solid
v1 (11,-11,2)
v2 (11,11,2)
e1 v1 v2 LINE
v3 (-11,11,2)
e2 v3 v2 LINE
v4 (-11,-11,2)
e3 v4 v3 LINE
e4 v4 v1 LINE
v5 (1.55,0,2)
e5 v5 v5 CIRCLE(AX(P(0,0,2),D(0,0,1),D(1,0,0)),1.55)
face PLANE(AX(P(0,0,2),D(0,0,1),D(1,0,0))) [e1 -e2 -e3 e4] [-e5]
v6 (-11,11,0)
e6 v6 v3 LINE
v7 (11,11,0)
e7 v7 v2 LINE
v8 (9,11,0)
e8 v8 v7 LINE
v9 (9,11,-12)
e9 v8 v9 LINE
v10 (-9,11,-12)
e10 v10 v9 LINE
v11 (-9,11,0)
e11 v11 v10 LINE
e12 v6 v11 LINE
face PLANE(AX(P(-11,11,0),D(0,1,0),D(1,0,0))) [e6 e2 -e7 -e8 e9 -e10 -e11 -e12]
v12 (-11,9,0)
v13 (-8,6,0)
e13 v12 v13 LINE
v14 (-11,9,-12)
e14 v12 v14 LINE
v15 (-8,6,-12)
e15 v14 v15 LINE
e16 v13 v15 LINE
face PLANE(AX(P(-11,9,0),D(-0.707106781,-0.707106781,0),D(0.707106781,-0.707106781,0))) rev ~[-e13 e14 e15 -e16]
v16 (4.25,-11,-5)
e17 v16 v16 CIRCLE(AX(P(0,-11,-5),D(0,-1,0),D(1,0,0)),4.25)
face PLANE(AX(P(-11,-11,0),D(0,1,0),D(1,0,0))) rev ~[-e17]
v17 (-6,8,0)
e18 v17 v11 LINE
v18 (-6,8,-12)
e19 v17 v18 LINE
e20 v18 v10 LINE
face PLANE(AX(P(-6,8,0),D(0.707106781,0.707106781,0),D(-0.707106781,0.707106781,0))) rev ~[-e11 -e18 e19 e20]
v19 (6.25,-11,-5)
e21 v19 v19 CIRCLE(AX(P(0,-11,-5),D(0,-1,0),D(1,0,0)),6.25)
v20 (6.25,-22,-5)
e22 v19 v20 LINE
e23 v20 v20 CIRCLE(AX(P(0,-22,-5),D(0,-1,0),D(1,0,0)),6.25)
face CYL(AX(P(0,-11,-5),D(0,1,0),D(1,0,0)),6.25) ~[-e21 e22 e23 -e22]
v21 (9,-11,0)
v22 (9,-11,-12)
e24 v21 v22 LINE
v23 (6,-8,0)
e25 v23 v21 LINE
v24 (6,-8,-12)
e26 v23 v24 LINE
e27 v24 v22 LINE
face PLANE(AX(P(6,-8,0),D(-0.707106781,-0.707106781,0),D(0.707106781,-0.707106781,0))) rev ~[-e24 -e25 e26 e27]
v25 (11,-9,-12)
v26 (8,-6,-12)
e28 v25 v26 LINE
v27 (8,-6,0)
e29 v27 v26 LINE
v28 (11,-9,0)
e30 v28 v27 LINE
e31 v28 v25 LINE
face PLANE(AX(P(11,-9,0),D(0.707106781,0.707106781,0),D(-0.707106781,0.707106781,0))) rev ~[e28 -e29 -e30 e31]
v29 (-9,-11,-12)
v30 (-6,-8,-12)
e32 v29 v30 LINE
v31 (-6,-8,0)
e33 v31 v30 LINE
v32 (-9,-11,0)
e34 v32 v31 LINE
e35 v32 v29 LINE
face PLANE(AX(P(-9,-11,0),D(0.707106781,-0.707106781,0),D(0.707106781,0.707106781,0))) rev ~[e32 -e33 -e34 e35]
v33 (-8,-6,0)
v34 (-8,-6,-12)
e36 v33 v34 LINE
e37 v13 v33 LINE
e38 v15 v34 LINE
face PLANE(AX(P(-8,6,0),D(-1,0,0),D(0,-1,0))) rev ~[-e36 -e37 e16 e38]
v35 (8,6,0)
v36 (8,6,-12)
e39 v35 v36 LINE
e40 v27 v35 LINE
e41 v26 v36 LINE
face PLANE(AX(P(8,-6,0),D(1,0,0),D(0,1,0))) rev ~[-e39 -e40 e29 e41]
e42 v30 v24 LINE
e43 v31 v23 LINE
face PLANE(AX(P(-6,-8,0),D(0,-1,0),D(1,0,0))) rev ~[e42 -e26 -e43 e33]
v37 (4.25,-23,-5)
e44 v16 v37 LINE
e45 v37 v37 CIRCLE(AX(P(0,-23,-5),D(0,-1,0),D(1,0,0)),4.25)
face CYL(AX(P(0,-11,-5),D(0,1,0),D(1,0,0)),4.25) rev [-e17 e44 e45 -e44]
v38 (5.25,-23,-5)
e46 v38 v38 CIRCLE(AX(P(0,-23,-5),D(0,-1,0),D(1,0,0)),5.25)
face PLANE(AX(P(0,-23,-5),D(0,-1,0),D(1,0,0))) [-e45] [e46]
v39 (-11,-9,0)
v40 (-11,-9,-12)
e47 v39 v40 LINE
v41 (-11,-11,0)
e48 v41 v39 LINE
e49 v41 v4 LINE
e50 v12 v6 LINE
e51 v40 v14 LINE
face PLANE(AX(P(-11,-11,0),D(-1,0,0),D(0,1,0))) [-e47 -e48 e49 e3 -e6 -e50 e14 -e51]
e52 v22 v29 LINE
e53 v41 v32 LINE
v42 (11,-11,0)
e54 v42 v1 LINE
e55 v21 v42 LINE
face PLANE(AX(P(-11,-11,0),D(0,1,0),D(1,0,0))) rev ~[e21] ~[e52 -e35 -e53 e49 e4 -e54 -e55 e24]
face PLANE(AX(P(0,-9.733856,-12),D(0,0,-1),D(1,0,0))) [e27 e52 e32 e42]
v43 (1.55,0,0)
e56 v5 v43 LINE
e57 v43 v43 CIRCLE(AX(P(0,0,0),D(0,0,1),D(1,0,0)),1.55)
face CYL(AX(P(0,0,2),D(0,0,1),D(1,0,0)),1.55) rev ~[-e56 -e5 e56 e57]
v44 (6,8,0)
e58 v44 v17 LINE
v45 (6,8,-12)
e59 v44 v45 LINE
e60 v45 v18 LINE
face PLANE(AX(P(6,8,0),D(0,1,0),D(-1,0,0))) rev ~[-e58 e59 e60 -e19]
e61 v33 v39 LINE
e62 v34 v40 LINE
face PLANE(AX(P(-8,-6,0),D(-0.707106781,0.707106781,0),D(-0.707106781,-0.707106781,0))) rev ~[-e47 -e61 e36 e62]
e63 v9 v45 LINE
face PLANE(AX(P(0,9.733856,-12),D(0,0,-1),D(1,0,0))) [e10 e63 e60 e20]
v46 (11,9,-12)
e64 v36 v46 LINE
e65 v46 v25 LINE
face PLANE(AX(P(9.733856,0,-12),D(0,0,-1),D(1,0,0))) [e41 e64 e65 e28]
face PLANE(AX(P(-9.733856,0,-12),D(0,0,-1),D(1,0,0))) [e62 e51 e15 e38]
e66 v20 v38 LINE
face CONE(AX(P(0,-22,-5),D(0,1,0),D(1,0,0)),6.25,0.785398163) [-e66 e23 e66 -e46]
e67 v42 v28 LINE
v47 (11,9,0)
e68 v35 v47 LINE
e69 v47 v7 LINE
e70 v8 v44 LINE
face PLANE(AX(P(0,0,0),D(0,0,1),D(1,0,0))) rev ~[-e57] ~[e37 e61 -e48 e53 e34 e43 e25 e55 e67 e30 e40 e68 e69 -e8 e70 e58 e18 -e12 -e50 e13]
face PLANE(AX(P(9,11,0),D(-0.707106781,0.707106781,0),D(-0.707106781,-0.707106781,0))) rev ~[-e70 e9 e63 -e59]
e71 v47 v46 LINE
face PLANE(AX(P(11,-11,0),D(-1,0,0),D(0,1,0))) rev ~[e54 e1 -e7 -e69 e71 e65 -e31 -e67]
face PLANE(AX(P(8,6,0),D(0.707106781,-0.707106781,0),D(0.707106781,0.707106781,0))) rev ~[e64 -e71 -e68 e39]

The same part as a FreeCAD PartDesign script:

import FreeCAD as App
import Part
import Sketcher

V = App.Vector


def edges_at(feature, points):
    """Names of the edges that pass closest to the given points."""
    edges = feature.Shape.Edges
    near = lambda p: min(range(len(edges)), key=lambda i: edges[i].distToShape(Part.Vertex(*p))[0])
    return sorted({f"Edge{near(p) + 1}" for p in points})


def add_polygon(sketch, points):
    """Adds a closed chain of lines whose ends are joined by coincident constraints."""
    first, n = sketch.GeometryCount, len(points)
    for a, b in zip(points, points[1:] + points[:1]):
        sketch.addGeometry(Part.LineSegment(App.Vector(*a, 0), App.Vector(*b, 0)), False)
    for i in range(n):
        sketch.addConstraint(Sketcher.Constraint("Coincident", first + i, 2, first + (i + 1) % n, 1))

doc = App.newDocument("Part")
body = doc.addObject("PartDesign::Body", "Body")

sketch1 = doc.addObject("Sketcher::SketchObject", "Sketch")
body.addObject(sketch1)
sketch1.AttachmentSupport = (doc.XY_Plane, [""])
sketch1.MapMode = "FlatFace"
add_polygon(sketch1, [(-11, 11), (-11, -11), (11, -11), (11, 11)])
sketch1.addConstraint(Sketcher.Constraint("Vertical", 0))
sketch1.addConstraint(Sketcher.Constraint("Horizontal", 1))
sketch1.addConstraint(Sketcher.Constraint("Vertical", 2))
sketch1.addConstraint(Sketcher.Constraint("Horizontal", 3))
sketch1.addConstraint(Sketcher.Constraint("Symmetric", 0, 2, 2, 2, -1, 1))
sketch1.addConstraint(Sketcher.Constraint("Equal", 3, 0))
sketch1.addConstraint(Sketcher.Constraint("DistanceX", 1, 1, 1, 2, 22.0))
pad1 = doc.addObject("PartDesign::Pad", "Pad")
body.addObject(pad1)
pad1.Profile = sketch1
pad1.Length = 2

sketch2 = doc.addObject("Sketcher::SketchObject", "Sketch001")
body.addObject(sketch2)
sketch2.AttachmentSupport = (doc.XY_Plane, [""])
sketch2.MapMode = "FlatFace"
sketch2.AttachmentOffset = App.Placement(V(0, 0, 2), App.Rotation())
sketch2.addGeometry(Part.Circle(V(0, 0, 0), V(0, 0, 1), 1.55), False)
sketch2.addConstraint(Sketcher.Constraint("Coincident", 0, 3, -1, 1))
sketch2.addConstraint(Sketcher.Constraint("Diameter", 0, 3.1))
pocket1 = doc.addObject("PartDesign::Pocket", "Pocket")
body.addObject(pocket1)
pocket1.Profile = sketch2
pocket1.Type = "ThroughAll"

sketch3 = doc.addObject("Sketcher::SketchObject", "Sketch002")
body.addObject(sketch3)
sketch3.AttachmentSupport = (doc.XY_Plane, [""])
sketch3.MapMode = "FlatFace"
add_polygon(sketch3, [(9, -11), (-9, -11), (-6, -8), (6, -8)])
add_polygon(sketch3, [(-8, -6), (-11, -9), (-11, 9), (-8, 6)])
add_polygon(sketch3, [(-6, 8), (-9, 11), (9, 11), (6, 8)])
add_polygon(sketch3, [(8, 6), (11, 9), (11, -9), (8, -6)])
sketch3.addConstraint(Sketcher.Constraint("Horizontal", 0))
sketch3.addConstraint(Sketcher.Constraint("Horizontal", 2))
sketch3.addConstraint(Sketcher.Constraint("Vertical", 5))
sketch3.addConstraint(Sketcher.Constraint("Vertical", 7))
sketch3.addConstraint(Sketcher.Constraint("Horizontal", 9))
sketch3.addConstraint(Sketcher.Constraint("Horizontal", 11))
sketch3.addConstraint(Sketcher.Constraint("Vertical", 13))
sketch3.addConstraint(Sketcher.Constraint("Vertical", 15))
sketch3.addConstraint(Sketcher.Constraint("Symmetric", 3, 2, 8, 2, -1, 1))
sketch3.addConstraint(Sketcher.Constraint("Symmetric", 1, 2, 10, 2, -1, 1))
sketch3.addConstraint(Sketcher.Constraint("Symmetric", 4, 2, 12, 2, -1, 1))
sketch3.addConstraint(Sketcher.Constraint("Symmetric", 6, 2, 14, 2, -1, 1))
sketch3.addConstraint(Sketcher.Constraint("Perpendicular", 1, 3))
sketch3.addConstraint(Sketcher.Constraint("Perpendicular", 3, 4))
sketch3.addConstraint(Sketcher.Constraint("Perpendicular", 4, 6))
sketch3.addConstraint(Sketcher.Constraint("Parallel", 6, 8))
sketch3.addConstraint(Sketcher.Constraint("Perpendicular", 8, 10))
sketch3.addConstraint(Sketcher.Constraint("Parallel", 10, 12))
sketch3.addConstraint(Sketcher.Constraint("Perpendicular", 12, 14))
sketch3.addConstraint(Sketcher.Constraint("Horizontal", 5, 2, 12, 2))
sketch3.addConstraint(Sketcher.Constraint("Horizontal", 7, 2, 14, 2))
sketch3.addConstraint(Sketcher.Constraint("Vertical", 0, 2, 8, 2))
sketch3.addConstraint(Sketcher.Constraint("Equal", 9, 5))
sketch3.addConstraint(Sketcher.Constraint("Equal", 11, 7))
sketch3.addConstraint(Sketcher.Constraint("DistanceX", 0, 2, 0, 1, 18.0))
sketch3.addConstraint(Sketcher.Constraint("DistanceX", 2, 1, 2, 2, 12.0))
sketch3.addConstraint(Sketcher.Constraint("DistanceY", 0, 2, -1, 1, 11.0))
sketch3.addConstraint(Sketcher.Constraint("DistanceX", 4, 2, -1, 1, 11.0))
pad2 = doc.addObject("PartDesign::Pad", "Pad001")
body.addObject(pad2)
pad2.Profile = sketch3
pad2.Length = 12
pad2.Reversed = True

sketch4 = doc.addObject("Sketcher::SketchObject", "Sketch003")
body.addObject(sketch4)
sketch4.AttachmentSupport = (doc.XZ_Plane, [""])
sketch4.MapMode = "FlatFace"
sketch4.AttachmentOffset = App.Placement(V(0, 0, 11), App.Rotation())
sketch4.addGeometry(Part.Circle(V(0, -5, 0), V(0, 0, 1), 6.25), False)
sketch4.addGeometry(Part.Circle(V(0, -5, 0), V(0, 0, 1), 4.25), False)
sketch4.addConstraint(Sketcher.Constraint("Coincident", 1, 3, 0, 3))
sketch4.addConstraint(Sketcher.Constraint("PointOnObject", 0, 3, -2))
sketch4.addConstraint(Sketcher.Constraint("Diameter", 0, 12.5))
sketch4.addConstraint(Sketcher.Constraint("Diameter", 1, 8.5))
sketch4.addConstraint(Sketcher.Constraint("DistanceY", 0, 3, -1, 1, 5.0))
pad3 = doc.addObject("PartDesign::Pad", "Pad002")
body.addObject(pad3)
pad3.Profile = sketch4
pad3.Length = 12
doc.recompute()

chamfer = doc.addObject("PartDesign::Chamfer", "Chamfer")
body.addObject(chamfer)
chamfer.Base = (pad3, edges_at(pad3, [(-6.25, -23, -5)]))
chamfer.Size = 1

doc.recompute()
